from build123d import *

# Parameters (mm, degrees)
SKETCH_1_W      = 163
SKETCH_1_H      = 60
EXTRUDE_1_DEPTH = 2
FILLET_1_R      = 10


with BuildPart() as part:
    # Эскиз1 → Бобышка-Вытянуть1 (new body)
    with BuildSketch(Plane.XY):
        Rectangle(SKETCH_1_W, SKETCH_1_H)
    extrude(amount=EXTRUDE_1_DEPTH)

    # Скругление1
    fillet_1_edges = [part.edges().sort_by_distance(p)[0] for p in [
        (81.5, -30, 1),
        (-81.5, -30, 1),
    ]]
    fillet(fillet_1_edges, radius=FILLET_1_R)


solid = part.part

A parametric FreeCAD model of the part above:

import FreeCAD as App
import Part
import Sketcher
from FreeCAD import Vector


def edges_at(feature, points):
    """Names of the edges that pass closest to the given points."""
    edges = feature.Shape.Edges
    near = lambda p: min(range(len(edges)), key=lambda i: edges[i].distToShape(Part.Vertex(*p))[0])
    return sorted({f"Edge{near(p) + 1}" for p in points})


def add_polygon(sketch, points):
    """Adds a closed chain of lines whose ends are joined by coincident constraints."""
    first, n = sketch.GeometryCount, len(points)
    for a, b in zip(points, points[1:] + points[:1]):
        sketch.addGeometry(Part.LineSegment(App.Vector(*a, 0), App.Vector(*b, 0)), False)
    for i in range(n):
        sketch.addConstraint(Sketcher.Constraint("Coincident", first + i, 2, first + (i + 1) % n, 1))

doc = App.newDocument("Part")
body = doc.addObject("PartDesign::Body", "Body")

# Sketch on XY plane
sketch1 = body.newObject("Sketcher::SketchObject", "Sketch")
sketch1.AttachmentSupport = (doc.getObject("XY_Plane"), [""])
sketch1.MapMode = "FlatFace"
add_polygon(sketch1, [(-82, 30), (-82, -30), (82, -30), (82, 30)])  # lines 0-3
sketch1.addConstraint(Sketcher.Constraint("Vertical", 0))
sketch1.addConstraint(Sketcher.Constraint("Horizontal", 1))
sketch1.addConstraint(Sketcher.Constraint("Vertical", 2))
sketch1.addConstraint(Sketcher.Constraint("Horizontal", 3))
sketch1.addConstraint(Sketcher.Constraint("Symmetric", 0, 2, 2, 2, -1, 1))
sketch1.addConstraint(Sketcher.Constraint("DistanceX", 1, 1, 1, 2, 163.0))
sketch1.addConstraint(Sketcher.Constraint("DistanceY", 0, 2, 0, 1, 60.0))
pad1 = body.newObject("PartDesign::Pad", "Pad")
pad1.Profile = sketch1
pad1.Length = 2
doc.recompute()

fillet = body.newObject("PartDesign::Fillet", "Fillet")
fillet.Base = (pad1, edges_at(pad1, [(81.5, -30, 1), (-81.5, -30, 1)]))
fillet.Radius = 10

doc.recompute()
